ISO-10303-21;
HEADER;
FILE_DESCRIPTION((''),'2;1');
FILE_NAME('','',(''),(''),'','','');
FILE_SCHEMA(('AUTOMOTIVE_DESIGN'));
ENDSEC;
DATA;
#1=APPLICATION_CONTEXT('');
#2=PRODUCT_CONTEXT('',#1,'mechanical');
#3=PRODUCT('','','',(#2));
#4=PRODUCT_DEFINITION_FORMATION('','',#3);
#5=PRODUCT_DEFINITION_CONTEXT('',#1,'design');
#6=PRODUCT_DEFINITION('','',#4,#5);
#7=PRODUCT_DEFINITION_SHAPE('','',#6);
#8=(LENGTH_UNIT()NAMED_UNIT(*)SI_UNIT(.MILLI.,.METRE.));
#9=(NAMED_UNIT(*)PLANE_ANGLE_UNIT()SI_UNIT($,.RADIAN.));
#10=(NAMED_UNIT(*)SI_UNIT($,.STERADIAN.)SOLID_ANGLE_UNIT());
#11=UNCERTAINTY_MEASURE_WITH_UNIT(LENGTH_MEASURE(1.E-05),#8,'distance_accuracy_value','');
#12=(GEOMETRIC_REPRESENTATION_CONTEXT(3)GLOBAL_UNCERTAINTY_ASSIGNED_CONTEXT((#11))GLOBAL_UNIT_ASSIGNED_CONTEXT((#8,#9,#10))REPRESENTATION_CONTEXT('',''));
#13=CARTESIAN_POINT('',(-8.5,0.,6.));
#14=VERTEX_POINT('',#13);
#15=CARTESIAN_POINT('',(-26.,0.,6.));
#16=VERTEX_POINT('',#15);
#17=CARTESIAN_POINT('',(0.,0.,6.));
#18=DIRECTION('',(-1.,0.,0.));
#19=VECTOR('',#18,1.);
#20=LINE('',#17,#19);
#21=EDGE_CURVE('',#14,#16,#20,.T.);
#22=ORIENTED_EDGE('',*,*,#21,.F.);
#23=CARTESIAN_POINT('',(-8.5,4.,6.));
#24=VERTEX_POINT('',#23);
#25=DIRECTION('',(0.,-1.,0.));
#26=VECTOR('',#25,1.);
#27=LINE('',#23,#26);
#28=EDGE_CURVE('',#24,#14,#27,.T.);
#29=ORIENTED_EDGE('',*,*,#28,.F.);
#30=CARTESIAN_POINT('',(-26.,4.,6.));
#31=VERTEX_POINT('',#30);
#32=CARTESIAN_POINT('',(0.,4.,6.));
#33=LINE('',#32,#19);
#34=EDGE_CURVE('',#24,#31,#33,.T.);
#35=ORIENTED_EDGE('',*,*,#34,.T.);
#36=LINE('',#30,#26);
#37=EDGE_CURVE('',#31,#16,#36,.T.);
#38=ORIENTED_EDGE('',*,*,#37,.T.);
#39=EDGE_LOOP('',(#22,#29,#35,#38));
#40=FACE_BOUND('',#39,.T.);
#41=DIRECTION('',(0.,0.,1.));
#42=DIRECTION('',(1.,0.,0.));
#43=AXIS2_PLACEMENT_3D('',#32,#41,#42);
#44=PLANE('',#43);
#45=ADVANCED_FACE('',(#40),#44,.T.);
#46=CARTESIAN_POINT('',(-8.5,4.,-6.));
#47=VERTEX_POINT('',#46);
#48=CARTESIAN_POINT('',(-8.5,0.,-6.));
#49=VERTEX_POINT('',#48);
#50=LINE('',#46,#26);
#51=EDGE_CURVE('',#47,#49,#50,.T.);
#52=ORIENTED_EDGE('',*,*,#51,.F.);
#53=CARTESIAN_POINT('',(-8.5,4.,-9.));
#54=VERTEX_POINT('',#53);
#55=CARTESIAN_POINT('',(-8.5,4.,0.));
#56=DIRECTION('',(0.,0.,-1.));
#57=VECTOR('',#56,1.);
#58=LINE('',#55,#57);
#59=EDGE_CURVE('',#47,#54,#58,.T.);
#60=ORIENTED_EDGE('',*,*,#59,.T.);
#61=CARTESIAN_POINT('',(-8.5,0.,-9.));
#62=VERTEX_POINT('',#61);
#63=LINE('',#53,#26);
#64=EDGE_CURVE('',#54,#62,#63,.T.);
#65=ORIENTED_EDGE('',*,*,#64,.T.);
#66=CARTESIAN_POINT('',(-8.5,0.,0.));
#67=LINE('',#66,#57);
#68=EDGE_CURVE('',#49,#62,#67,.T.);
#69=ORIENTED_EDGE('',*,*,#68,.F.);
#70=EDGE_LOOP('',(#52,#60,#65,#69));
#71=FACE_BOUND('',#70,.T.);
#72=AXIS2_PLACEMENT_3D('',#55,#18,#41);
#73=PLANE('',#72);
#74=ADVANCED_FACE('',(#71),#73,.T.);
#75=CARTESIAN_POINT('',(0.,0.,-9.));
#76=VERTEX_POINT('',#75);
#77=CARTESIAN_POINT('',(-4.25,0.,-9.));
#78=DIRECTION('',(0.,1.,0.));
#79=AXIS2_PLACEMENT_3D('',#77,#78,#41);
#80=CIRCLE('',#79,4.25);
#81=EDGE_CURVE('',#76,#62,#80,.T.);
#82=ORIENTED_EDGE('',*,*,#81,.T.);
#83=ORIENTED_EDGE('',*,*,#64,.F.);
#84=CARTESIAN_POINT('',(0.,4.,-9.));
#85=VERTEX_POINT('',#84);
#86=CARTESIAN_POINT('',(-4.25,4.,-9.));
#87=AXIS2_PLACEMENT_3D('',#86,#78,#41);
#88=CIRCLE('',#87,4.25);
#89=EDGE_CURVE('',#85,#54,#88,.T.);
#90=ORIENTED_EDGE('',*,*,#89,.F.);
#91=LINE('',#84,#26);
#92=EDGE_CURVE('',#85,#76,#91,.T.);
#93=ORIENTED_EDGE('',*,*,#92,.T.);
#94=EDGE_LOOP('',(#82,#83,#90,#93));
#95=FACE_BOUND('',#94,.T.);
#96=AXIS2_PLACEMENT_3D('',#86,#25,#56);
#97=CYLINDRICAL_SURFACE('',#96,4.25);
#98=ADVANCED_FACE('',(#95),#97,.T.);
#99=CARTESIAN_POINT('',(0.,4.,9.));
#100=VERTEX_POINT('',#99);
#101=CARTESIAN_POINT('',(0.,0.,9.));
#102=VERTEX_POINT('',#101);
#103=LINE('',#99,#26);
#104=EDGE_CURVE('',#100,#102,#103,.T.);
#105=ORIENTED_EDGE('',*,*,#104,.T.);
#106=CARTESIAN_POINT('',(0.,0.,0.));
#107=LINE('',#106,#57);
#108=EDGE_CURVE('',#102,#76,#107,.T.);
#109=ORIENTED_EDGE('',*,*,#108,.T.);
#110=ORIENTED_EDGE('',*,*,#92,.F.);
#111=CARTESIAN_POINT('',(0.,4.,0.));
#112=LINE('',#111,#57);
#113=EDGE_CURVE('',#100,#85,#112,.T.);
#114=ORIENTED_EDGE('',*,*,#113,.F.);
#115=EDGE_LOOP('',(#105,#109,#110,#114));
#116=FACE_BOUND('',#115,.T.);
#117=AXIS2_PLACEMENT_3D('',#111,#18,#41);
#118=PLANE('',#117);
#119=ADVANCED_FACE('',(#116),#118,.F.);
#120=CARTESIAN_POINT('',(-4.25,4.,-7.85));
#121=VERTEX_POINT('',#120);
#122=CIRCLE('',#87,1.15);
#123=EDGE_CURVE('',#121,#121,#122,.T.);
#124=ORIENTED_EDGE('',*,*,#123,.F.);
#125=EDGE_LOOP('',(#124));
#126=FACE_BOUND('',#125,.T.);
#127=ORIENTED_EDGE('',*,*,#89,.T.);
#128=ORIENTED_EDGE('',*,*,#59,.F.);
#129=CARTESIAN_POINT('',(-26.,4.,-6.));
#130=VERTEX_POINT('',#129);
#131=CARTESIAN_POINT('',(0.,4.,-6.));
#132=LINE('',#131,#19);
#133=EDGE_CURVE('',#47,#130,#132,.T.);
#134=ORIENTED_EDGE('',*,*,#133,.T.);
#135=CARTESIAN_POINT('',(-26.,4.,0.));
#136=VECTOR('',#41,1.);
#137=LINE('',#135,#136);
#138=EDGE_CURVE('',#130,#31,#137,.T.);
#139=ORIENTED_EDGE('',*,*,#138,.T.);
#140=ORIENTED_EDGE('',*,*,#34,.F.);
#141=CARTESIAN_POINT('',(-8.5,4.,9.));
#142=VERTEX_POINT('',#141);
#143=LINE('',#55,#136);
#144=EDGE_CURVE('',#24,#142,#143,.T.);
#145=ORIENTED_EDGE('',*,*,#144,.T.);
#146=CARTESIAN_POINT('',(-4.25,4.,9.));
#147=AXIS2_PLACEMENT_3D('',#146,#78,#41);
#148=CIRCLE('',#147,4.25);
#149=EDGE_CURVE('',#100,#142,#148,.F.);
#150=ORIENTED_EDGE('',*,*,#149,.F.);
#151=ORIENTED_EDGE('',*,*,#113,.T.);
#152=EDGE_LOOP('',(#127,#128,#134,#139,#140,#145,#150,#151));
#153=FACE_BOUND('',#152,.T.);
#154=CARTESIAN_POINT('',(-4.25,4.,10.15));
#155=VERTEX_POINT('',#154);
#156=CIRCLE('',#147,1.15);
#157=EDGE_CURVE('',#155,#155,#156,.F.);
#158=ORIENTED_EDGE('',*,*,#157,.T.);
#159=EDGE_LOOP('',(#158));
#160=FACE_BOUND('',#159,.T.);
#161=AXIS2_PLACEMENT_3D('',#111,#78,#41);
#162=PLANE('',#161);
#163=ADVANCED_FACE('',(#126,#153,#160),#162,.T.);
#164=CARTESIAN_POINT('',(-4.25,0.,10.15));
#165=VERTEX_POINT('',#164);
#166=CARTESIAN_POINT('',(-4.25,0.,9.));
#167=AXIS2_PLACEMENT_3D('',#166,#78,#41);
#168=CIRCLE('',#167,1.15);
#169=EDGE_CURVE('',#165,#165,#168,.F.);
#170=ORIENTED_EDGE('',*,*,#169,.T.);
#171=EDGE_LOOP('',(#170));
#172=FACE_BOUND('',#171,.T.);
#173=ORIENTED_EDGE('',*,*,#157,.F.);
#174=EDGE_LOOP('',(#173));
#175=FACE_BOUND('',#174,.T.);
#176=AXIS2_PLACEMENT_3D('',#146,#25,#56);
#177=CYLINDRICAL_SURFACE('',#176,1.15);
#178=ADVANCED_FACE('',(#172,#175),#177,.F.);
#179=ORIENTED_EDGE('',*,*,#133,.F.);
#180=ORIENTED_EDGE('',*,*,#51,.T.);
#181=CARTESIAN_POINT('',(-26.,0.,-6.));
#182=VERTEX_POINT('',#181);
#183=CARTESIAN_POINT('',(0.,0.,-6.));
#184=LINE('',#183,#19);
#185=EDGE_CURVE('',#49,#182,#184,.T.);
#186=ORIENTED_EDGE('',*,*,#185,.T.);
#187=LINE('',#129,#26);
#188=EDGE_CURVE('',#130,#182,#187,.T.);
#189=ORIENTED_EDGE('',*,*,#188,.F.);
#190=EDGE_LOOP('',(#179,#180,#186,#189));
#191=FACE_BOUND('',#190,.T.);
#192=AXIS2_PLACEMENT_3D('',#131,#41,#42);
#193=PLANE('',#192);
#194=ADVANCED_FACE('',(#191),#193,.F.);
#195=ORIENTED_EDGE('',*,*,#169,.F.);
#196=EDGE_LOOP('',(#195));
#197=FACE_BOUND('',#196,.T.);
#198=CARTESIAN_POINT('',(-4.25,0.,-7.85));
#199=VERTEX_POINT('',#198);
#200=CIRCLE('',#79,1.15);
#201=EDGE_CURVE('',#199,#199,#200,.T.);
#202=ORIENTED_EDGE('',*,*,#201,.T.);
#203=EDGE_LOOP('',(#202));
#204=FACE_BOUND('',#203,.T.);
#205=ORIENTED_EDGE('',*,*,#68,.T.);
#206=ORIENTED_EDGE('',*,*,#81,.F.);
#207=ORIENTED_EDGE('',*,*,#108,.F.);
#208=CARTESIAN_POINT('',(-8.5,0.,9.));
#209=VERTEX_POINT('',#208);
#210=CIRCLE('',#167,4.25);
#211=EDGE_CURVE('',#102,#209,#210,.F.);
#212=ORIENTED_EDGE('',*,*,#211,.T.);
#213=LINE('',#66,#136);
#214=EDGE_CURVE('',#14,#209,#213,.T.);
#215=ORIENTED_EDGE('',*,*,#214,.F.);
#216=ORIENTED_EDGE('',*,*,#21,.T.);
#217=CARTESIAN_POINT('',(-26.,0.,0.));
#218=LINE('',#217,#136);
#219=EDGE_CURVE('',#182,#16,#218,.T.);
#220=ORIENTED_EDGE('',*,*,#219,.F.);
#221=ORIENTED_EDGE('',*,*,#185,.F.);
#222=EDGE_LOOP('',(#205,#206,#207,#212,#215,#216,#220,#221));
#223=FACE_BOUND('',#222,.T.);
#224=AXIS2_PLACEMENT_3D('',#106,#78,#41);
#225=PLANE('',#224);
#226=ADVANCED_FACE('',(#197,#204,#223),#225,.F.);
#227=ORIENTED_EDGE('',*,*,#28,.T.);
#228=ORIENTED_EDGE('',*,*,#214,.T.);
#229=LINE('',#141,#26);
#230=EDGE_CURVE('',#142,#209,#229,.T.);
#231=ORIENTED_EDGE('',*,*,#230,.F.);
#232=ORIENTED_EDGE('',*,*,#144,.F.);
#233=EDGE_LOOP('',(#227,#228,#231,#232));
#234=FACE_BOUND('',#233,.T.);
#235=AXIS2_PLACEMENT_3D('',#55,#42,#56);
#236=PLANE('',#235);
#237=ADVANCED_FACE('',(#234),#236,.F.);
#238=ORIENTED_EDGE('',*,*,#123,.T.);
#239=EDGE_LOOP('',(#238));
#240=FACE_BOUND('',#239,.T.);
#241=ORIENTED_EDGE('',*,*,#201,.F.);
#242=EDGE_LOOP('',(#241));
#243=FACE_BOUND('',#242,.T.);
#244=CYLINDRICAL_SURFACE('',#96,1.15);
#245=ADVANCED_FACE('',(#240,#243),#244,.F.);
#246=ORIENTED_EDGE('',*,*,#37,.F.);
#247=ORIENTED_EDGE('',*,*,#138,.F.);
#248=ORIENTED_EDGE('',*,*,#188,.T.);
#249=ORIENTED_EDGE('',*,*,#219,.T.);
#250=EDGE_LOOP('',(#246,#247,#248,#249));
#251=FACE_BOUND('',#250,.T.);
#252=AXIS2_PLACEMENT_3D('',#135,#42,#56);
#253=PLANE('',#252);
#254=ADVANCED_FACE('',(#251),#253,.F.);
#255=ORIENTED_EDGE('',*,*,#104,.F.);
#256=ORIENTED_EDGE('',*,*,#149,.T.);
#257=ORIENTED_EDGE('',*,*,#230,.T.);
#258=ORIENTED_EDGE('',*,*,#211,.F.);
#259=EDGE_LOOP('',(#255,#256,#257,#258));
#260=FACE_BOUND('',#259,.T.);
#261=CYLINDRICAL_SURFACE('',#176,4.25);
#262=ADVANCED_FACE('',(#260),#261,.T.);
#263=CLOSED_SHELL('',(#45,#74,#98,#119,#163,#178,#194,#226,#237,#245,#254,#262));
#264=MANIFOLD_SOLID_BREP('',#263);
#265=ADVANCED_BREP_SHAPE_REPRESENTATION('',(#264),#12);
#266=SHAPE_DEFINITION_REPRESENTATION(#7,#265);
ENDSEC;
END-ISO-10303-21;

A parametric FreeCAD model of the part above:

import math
import FreeCAD as App
import Part
import Sketcher
from FreeCAD import Vector
Q = App.Units.Quantity

doc = App.newDocument("Part")
body = doc.addObject("PartDesign::Body", "Body")

# Sketch on XZ plane
sketch1 = doc.addObject("Sketcher::SketchObject", "Sketch")
body.addObject(sketch1)
sketch1.AttachmentSupport = (doc.XZ_Plane, [""])
sketch1.MapMode = "FlatFace"
sketch1.addGeometry(Part.LineSegment(Vector(-8.5, -9, 0), Vector(-8.5, -6, 0)), False)
sketch1.addGeometry(Part.LineSegment(Vector(-8.5, -6, 0), Vector(-26, -6, 0)), False)
sketch1.addGeometry(Part.LineSegment(Vector(-26, -6, 0), Vector(-26, 6, 0)), False)
sketch1.addGeometry(Part.LineSegment(Vector(-26, 6, 0), Vector(-8.5, 6, 0)), False)
sketch1.addGeometry(Part.LineSegment(Vector(-8.5, 6, 0), Vector(-8.5, 9, 0)), False)
sketch1.addGeometry(Part.ArcOfCircle(Part.Circle(Vector(-4.2, 9, 0), Vector(0, 0, 1), 4.2), math.radians(0), math.radians(180)), False)
sketch1.addGeometry(Part.LineSegment(Vector(0, 9, 0), Vector(0, -9, 0)), False)
sketch1.addGeometry(Part.ArcOfCircle(Part.Circle(Vector(-4.2, -9, 0), Vector(0, 0, 1), 4.2), math.radians(180), math.radians(360)), False)
sketch1.addGeometry(Part.Circle(Vector(-4.2, 9, 0), Vector(0, 0, 1), 1.1), False)
sketch1.addGeometry(Part.Circle(Vector(-4.2, -9, 0), Vector(0, 0, 1), 1.1), False)
sketch1.addConstraint(Sketcher.Constraint("Coincident", 0, 2, 1, 1))
sketch1.addConstraint(Sketcher.Constraint("Coincident", 1, 2, 2, 1))
sketch1.addConstraint(Sketcher.Constraint("Coincident", 2, 2, 3, 1))
sketch1.addConstraint(Sketcher.Constraint("Coincident", 3, 2, 4, 1))
sketch1.addConstraint(Sketcher.Constraint("Tangent", 4, 2, 5, 2))
sketch1.addConstraint(Sketcher.Constraint("Tangent", 5, 1, 6, 1))
sketch1.addConstraint(Sketcher.Constraint("Tangent", 6, 2, 7, 2))
sketch1.addConstraint(Sketcher.Constraint("Tangent", 7, 1, 0, 1))
sketch1.addConstraint(Sketcher.Constraint("Vertical", 0))
sketch1.addConstraint(Sketcher.Constraint("Horizontal", 1))
sketch1.addConstraint(Sketcher.Constraint("Vertical", 2))
sketch1.addConstraint(Sketcher.Constraint("Horizontal", 3))
sketch1.addConstraint(Sketcher.Constraint("Vertical", 4))
sketch1.addConstraint(Sketcher.Constraint("Vertical", 6))
sketch1.addConstraint(Sketcher.Constraint("Coincident", 8, 3, 5, 3))
sketch1.addConstraint(Sketcher.Constraint("Coincident", 9, 3, 7, 3))
sketch1.addConstraint(Sketcher.Constraint("Equal", 5, 7))
sketch1.addConstraint(Sketcher.Constraint("Equal", 8, 9))
sketch1.addConstraint(Sketcher.Constraint("Symmetric", 5, 1, 6, 2, -1, 1))
sketch1.addConstraint(Sketcher.Constraint("Equal", 0, 4))
sketch1.addConstraint(Sketcher.Constraint("Diameter", 8, Q("2.3 mm")))
sketch1.addConstraint(Sketcher.Constraint("DistanceY", 0, 1, 0, 2, Q("3 mm")))
sketch1.addConstraint(Sketcher.Constraint("DistanceY", 2, 1, 2, 2, Q("12 mm")))
sketch1.addConstraint(Sketcher.Constraint("Radius", 5, Q("4.25 mm")))
sketch1.addConstraint(Sketcher.Constraint("DistanceX", 1, 2, 1, 1, Q("17.5 mm")))
pad1 = doc.addObject("PartDesign::Pad", "Pad")
body.addObject(pad1)
pad1.Profile = sketch1
pad1.Length = 4
pad1.Reversed = True

doc.recompute()
